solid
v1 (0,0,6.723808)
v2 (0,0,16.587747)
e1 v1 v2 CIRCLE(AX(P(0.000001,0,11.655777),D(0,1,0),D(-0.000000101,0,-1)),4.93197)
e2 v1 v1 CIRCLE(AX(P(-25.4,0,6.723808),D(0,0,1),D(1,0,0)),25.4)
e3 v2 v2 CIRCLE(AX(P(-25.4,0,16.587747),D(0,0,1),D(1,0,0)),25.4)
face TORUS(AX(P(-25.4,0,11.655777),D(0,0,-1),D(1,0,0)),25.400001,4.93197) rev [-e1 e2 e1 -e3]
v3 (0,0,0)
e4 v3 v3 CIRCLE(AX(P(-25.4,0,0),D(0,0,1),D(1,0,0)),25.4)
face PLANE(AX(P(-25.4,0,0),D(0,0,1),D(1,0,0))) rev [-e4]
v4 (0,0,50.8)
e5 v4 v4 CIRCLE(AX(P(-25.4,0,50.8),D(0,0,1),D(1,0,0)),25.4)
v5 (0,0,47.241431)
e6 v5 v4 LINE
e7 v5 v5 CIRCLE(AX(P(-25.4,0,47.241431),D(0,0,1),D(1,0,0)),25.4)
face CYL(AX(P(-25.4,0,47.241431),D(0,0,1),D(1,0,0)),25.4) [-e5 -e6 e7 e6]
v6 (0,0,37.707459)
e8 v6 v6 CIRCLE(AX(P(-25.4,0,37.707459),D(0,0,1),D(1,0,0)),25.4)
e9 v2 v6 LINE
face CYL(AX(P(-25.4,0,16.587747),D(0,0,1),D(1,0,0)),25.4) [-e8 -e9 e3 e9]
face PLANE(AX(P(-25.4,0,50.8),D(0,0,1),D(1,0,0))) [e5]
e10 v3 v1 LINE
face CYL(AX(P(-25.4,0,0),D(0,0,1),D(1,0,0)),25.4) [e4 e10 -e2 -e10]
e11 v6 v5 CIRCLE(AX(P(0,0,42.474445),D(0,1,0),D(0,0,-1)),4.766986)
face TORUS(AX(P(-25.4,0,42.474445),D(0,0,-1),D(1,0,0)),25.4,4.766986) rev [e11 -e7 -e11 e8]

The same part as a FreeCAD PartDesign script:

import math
import FreeCAD as App
import Part
import Sketcher
from FreeCAD import Vector
Q = App.Units.Quantity

doc = App.newDocument("Part")
params = doc.addObject("Spreadsheet::Sheet", "Params")
for row, (alias, value) in enumerate([
    ("sketch1_width", "1 in"),
    ("sketch1_height", "2 in"),
    ("revolution_angle", "360 deg"),
], start=1):
    params.set(f"A{row}", alias)
    params.set(f"B{row}", "=" + value)
    params.setAlias(f"B{row}", alias)

body = doc.addObject("PartDesign::Body", "Body")

# Sketch on XZ plane
sketch1 = doc.addObject("Sketcher::SketchObject", "Sketch")
body.addObject(sketch1)
sketch1.AttachmentSupport = (doc.XZ_Plane, [""])
sketch1.MapMode = "FlatFace"
sketch1.addGeometry([
    Part.LineSegment(Vector(-25.4, 0, 0), Vector(0, 0, 0)),  # 0
    Part.LineSegment(Vector(0, 0, 0), Vector(0, 6.7, 0)),  # 1
    Part.ArcOfCircle(Part.Circle(Vector(0, 11.7, 0), Vector(0, 0, 1), 4.9), math.radians(90), math.radians(270)),  # 2
    Part.LineSegment(Vector(0, 16.6, 0), Vector(0, 37.7, 0)),  # 3
    Part.ArcOfCircle(Part.Circle(Vector(0, 42.5, 0), Vector(0, 0, 1), 4.8), math.radians(90), math.radians(270)),  # 4
    Part.LineSegment(Vector(0, 47.2, 0), Vector(0, 50.8, 0)),  # 5
    Part.LineSegment(Vector(0, 50.8, 0), Vector(-25.4, 50.8, 0)),  # 6
    Part.LineSegment(Vector(-25.4, 50.8, 0), Vector(-25.4, 0, 0)),  # 7
], False)
sketch1.addGeometry(Part.LineSegment(Vector(-25.4, 0, 0), Vector(-25.4, 50.8, 0)), True)  # axis
sketch1.addConstraint([
    Sketcher.Constraint("Coincident", 0, 2, 1, 1),
    Sketcher.Constraint("Coincident", 1, 2, 2, 2),
    Sketcher.Constraint("Coincident", 2, 1, 3, 1),
    Sketcher.Constraint("Coincident", 3, 2, 4, 2),
    Sketcher.Constraint("Coincident", 4, 1, 5, 1),
    Sketcher.Constraint("Coincident", 5, 2, 6, 1),
    Sketcher.Constraint("Coincident", 6, 2, 7, 1),
    Sketcher.Constraint("Coincident", 7, 2, 0, 1),
    Sketcher.Constraint("Horizontal", 0),
    Sketcher.Constraint("Vertical", 1),
    Sketcher.Constraint("Vertical", 3),
    Sketcher.Constraint("Vertical", 5),
    Sketcher.Constraint("Horizontal", 6),
    Sketcher.Constraint("Vertical", 7),
    Sketcher.Constraint("Vertical", 8),
    Sketcher.Constraint("Coincident", 0, 2, -1, 1),
    Sketcher.Constraint("Coincident", 8, 1, 7, 2),
    Sketcher.Constraint("PointOnObject", 2, 3, -2),
    Sketcher.Constraint("PointOnObject", 4, 3, -2),
    Sketcher.Constraint("PointOnObject", 2, 1, -2),
    Sketcher.Constraint("PointOnObject", 4, 1, -2),
    Sketcher.Constraint("Horizontal", 5, 2, 8, 2),
    Sketcher.Constraint("DistanceX", 0, 1, 0, 2, Q("1 in")),
    Sketcher.Constraint("DistanceY", 7, 2, 7, 1, Q("2 in")),
    Sketcher.Constraint("Radius", 2, 4.93197),
    Sketcher.Constraint("Radius", 4, 4.766986),
    Sketcher.Constraint("DistanceY", 3, 1, 3, 2, 21.119712),
    Sketcher.Constraint("DistanceY", 5, 1, 5, 2, 3.558569),
])
sketch1.setExpression("Constraints[22]", "Params.sketch1_width")
sketch1.setExpression("Constraints[23]", "Params.sketch1_height")
revolution = doc.addObject("PartDesign::Revolution", "Revolution")
body.addObject(revolution)
revolution.Profile = sketch1
revolution.ReferenceAxis = (sketch1, ["Axis0"])
revolution.setExpression("Angle", "Params.revolution_angle")

doc.recompute()
